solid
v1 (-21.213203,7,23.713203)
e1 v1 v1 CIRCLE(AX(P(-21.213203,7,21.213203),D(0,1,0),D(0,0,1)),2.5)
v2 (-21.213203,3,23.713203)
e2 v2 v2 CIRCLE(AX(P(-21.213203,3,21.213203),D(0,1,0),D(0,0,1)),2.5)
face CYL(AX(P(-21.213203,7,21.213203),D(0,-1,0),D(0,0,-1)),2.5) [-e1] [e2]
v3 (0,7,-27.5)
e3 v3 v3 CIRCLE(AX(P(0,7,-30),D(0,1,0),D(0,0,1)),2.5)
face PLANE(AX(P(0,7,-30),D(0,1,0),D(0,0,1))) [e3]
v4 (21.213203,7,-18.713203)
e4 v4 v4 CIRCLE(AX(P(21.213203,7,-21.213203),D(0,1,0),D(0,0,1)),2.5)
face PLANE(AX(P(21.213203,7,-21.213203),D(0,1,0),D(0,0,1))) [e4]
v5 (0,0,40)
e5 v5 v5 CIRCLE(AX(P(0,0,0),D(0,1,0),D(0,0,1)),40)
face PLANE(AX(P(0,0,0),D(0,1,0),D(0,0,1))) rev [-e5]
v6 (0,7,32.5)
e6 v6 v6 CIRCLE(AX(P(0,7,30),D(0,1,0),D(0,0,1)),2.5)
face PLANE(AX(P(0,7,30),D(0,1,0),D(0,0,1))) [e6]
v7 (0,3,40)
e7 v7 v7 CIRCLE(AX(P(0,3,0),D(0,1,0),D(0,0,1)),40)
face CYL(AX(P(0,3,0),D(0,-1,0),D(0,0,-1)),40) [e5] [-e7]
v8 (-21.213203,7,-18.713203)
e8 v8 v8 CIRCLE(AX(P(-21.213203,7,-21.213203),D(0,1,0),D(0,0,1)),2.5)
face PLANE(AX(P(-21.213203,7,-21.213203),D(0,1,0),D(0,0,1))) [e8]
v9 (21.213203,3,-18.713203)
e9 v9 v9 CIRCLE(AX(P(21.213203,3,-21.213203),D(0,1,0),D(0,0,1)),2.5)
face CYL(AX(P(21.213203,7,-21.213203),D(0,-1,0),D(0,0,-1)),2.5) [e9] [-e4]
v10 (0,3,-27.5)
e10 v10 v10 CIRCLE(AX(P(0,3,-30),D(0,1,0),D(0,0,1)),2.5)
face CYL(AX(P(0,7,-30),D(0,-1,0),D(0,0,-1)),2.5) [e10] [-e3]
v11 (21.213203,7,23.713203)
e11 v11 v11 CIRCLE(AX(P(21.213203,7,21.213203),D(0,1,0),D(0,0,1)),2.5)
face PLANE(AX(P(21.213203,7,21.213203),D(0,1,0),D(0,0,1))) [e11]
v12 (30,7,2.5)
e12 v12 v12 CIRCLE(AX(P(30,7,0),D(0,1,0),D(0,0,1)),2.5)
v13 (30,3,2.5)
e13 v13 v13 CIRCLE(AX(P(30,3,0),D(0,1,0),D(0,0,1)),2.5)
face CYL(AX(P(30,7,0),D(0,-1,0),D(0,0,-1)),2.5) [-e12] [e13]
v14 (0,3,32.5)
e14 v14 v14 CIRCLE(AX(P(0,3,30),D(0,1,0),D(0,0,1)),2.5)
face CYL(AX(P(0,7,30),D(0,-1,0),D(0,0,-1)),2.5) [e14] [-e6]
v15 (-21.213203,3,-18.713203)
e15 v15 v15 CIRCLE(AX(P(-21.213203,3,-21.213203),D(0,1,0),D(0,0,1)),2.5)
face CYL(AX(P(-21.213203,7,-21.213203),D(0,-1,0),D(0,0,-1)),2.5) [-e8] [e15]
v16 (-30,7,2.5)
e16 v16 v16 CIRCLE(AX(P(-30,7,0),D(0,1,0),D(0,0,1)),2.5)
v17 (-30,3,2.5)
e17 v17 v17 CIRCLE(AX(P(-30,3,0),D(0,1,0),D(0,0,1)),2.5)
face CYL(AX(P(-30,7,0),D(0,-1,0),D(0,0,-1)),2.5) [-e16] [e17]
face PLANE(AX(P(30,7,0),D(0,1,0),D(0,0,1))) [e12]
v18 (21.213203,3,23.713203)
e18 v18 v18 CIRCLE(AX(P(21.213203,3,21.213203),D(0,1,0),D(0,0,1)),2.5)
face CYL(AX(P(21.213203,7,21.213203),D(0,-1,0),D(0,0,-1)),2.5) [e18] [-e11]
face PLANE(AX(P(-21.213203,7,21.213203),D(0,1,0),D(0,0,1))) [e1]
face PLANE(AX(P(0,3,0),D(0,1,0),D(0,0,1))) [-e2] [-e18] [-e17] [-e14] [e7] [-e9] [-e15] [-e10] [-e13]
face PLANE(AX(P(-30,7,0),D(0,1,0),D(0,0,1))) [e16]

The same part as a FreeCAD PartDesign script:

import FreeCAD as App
import Part
import Sketcher
Q = App.Units.Quantity

doc = App.newDocument("Part")
body = doc.addObject("PartDesign::Body", "Body")

sketch1 = body.newObject("Sketcher::SketchObject", "Sketch")
sketch1.AttachmentSupport = (doc.getObject("XZ_Plane"), [""])
sketch1.MapMode = "FlatFace"
sketch1.addGeometry(Part.Circle(App.Vector(0, 0, 0), App.Vector(0, 0, 1), 40), False)
sketch1.addConstraint([
    Sketcher.Constraint("Coincident", 0, 3, -1, 1),
    Sketcher.Constraint("Diameter", 0, Q("80 mm")),
])
pad1 = body.newObject("PartDesign::Pad", "Pad")
pad1.Profile = sketch1
pad1.Length = 3
pad1.Reversed = True

sketch2 = body.newObject("Sketcher::SketchObject", "Sketch001")
sketch2.AttachmentSupport = (doc.getObject("XZ_Plane"), [""])
sketch2.MapMode = "FlatFace"
sketch2.AttachmentOffset = App.Placement(App.Vector(0, 0, -3), App.Rotation())
sketch2.addGeometry([
    Part.Circle(App.Vector(0, -30, 0), App.Vector(0, 0, 1), 2.5),
    Part.Circle(App.Vector(21.213203, -21.213203, 0), App.Vector(0, 0, 1), 2.5),
    Part.Circle(App.Vector(30, 0, 0), App.Vector(0, 0, 1), 2.5),
    Part.Circle(App.Vector(21.213203, 21.213203, 0), App.Vector(0, 0, 1), 2.5),
    Part.Circle(App.Vector(0, 30, 0), App.Vector(0, 0, 1), 2.5),
    Part.Circle(App.Vector(-21.213203, 21.213203, 0), App.Vector(0, 0, 1), 2.5),
    Part.Circle(App.Vector(-30, 0, 0), App.Vector(0, 0, 1), 2.5),
    Part.Circle(App.Vector(-21.213203, -21.213203, 0), App.Vector(0, 0, 1), 2.5),
], False)
sketch2.addConstraint([
    Sketcher.Constraint("Equal", 0, 1),
    Sketcher.Constraint("Equal", 1, 2),
    Sketcher.Constraint("Equal", 2, 3),
    Sketcher.Constraint("Equal", 3, 4),
    Sketcher.Constraint("Equal", 4, 5),
    Sketcher.Constraint("Equal", 5, 6),
    Sketcher.Constraint("Equal", 6, 7),
    Sketcher.Constraint("Symmetric", 0, 3, 4, 3, -1, 1),
    Sketcher.Constraint("Symmetric", 1, 3, 5, 3, -1, 1),
    Sketcher.Constraint("Symmetric", 2, 3, 6, 3, -1, 1),
    Sketcher.Constraint("Symmetric", 3, 3, 7, 3, -1, 1),
    Sketcher.Constraint("Symmetric", 3, 3, 5, 3, -2),
    Sketcher.Constraint("PointOnObject", 0, 3, -2),
    Sketcher.Constraint("PointOnObject", 2, 3, -1),
    Sketcher.Constraint("Diameter", 0, Q("5 mm")),
    Sketcher.Constraint("DistanceY", 0, 3, -1, 1, Q("30 mm")),
    Sketcher.Constraint("DistanceX", -1, 1, 2, 3, Q("30 mm")),
    Sketcher.Constraint("DistanceX", -1, 1, 1, 3, Q("21.213203 mm")),
    Sketcher.Constraint("DistanceY", 1, 3, -1, 1, Q("21.213203 mm")),
])
pad2 = body.newObject("PartDesign::Pad", "Pad001")
pad2.Profile = sketch2
pad2.Length = 4
pad2.Reversed = True

doc.recompute()
